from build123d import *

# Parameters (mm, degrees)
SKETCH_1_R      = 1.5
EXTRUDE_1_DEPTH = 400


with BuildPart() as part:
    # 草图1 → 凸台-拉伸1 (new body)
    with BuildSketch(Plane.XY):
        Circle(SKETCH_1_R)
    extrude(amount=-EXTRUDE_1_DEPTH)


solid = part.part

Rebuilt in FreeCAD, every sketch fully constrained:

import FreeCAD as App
import Part
import Sketcher
Q = App.Units.Quantity

doc = App.newDocument("Part")
body = doc.addObject("PartDesign::Body", "Body")

# Sketch on XY plane
sketch1 = body.newObject("Sketcher::SketchObject", "Sketch")
sketch1.AttachmentSupport = (doc.getObject("XY_Plane"), [""])
sketch1.MapMode = "FlatFace"
sketch1.addGeometry(Part.Circle(App.Vector(0, 0, 0), App.Vector(0, 0, 1), 1.5), False)
sketch1.addConstraint([
    Sketcher.Constraint("Coincident", 0, 3, -1, 1),
    Sketcher.Constraint("Diameter", 0, Q("3 mm")),
])
pad1 = body.newObject("PartDesign::Pad", "Pad")
pad1.Profile = sketch1
pad1.Length = 400
pad1.Reversed = True

doc.recompute()
